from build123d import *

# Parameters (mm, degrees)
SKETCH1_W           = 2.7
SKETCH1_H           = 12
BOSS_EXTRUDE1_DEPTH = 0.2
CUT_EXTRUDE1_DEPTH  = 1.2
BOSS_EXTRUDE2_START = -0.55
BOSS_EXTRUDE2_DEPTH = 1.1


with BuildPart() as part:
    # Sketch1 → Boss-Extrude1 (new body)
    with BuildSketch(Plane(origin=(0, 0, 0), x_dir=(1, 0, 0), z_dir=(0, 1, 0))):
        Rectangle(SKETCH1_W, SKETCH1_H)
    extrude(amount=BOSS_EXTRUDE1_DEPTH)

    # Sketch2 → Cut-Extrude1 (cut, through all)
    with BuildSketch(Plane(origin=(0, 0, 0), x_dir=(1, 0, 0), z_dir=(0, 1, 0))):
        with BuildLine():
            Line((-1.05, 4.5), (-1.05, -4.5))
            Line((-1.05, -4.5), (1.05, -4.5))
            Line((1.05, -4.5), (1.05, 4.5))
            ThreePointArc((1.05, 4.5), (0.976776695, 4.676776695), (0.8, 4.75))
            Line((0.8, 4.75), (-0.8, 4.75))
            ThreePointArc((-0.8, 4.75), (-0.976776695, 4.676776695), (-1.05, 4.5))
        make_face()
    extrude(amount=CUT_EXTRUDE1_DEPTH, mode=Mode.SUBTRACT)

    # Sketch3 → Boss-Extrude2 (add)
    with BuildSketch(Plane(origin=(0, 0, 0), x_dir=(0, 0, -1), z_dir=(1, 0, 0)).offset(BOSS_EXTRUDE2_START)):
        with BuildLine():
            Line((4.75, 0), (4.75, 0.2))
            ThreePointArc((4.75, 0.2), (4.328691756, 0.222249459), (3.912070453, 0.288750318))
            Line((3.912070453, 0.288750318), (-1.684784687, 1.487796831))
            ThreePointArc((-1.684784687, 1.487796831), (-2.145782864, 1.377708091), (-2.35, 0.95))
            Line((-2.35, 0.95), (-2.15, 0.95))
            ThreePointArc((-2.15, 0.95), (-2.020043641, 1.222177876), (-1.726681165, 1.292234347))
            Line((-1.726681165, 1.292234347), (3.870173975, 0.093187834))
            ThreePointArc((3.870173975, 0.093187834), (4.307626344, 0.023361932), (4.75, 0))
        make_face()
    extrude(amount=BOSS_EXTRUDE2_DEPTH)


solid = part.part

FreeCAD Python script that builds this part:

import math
import FreeCAD as App
import Part
import Sketcher

V = App.Vector

doc = App.newDocument("Part")
params = doc.addObject("Spreadsheet::Sheet", "Params")
for row, (alias, value) in enumerate([
    ("sketch1_height", "12 mm"),
    ("sketch1_width", "2.7 mm"),
    ("pad1_length", "0.2 mm"),
    ("sketch2_height", "9 mm"),
    ("sketch2_radius", "0.25 mm"),
    ("sketch2_width", "2.1 mm"),
    ("sketch3_radius", "4 mm"),
    ("sketch3_radius2", "4.2 mm"),
    ("sketch3_radius3", "0.55 mm"),
    ("pad2_length", "1.1 mm"),
], start=1):
    params.set(f"A{row}", alias)
    params.set(f"B{row}", "=" + value)
    params.setAlias(f"B{row}", alias)

body = doc.addObject("PartDesign::Body", "Body")

sketch1 = doc.addObject("Sketcher::SketchObject", "Sketch")
body.addObject(sketch1)
sketch1.AttachmentSupport = (doc.XZ_Plane, [""])
sketch1.MapMode = "FlatFace"
sketch1.addGeometry([
    Part.LineSegment(V(-1.4, -6, 0), V(-1.4, 6, 0)),
    Part.LineSegment(V(-1.4, 6, 0), V(1.4, 6, 0)),
    Part.LineSegment(V(1.4, 6, 0), V(1.4, -6, 0)),
    Part.LineSegment(V(1.4, -6, 0), V(-1.4, -6, 0)),
], False)
sketch1.addConstraint([
    Sketcher.Constraint("Coincident", 0, 2, 1, 1),
    Sketcher.Constraint("Coincident", 1, 2, 2, 1),
    Sketcher.Constraint("Coincident", 2, 2, 3, 1),
    Sketcher.Constraint("Coincident", 3, 2, 0, 1),
    Sketcher.Constraint("Vertical", 0),
    Sketcher.Constraint("Horizontal", 1),
    Sketcher.Constraint("Vertical", 2),
    Sketcher.Constraint("Horizontal", 3),
    Sketcher.Constraint("Symmetric", 0, 2, 2, 2, -1, 1),
    Sketcher.Constraint("DistanceY", 0, 1, 0, 2, 12.0),
    Sketcher.Constraint("DistanceX", 1, 1, 1, 2, 2.7),
])
sketch1.setExpression("Constraints[9]", "Params.sketch1_height")
sketch1.setExpression("Constraints[10]", "Params.sketch1_width")
pad1 = doc.addObject("PartDesign::Pad", "Pad")
body.addObject(pad1)
pad1.Profile = sketch1
pad1.setExpression("Length", "Params.pad1_length")
pad1.Reversed = True

sketch2 = doc.addObject("Sketcher::SketchObject", "Sketch001")
body.addObject(sketch2)
sketch2.AttachmentSupport = (doc.XZ_Plane, [""])
sketch2.MapMode = "FlatFace"
sketch2.addGeometry([
    Part.LineSegment(V(-1.05, -4.5, 0), V(-1.05, 4.5, 0)),
    Part.LineSegment(V(-1.05, 4.5, 0), V(1.05, 4.5, 0)),
    Part.LineSegment(V(1.05, 4.5, 0), V(1.05, -4.5, 0)),
    Part.ArcOfCircle(Part.Circle(V(0.8, -4.5, 0), V(0, 0, 1), 0.25), math.radians(-90), math.radians(0)),
    Part.LineSegment(V(0.8, -4.75, 0), V(-0.8, -4.75, 0)),
    Part.ArcOfCircle(Part.Circle(V(-0.8, -4.5, 0), V(0, 0, 1), 0.25), math.radians(-180), math.radians(-90)),
], False)
sketch2.addConstraint([
    Sketcher.Constraint("Coincident", 0, 2, 1, 1),
    Sketcher.Constraint("Coincident", 1, 2, 2, 1),
    Sketcher.Constraint("Tangent", 2, 2, 3, 2),
    Sketcher.Constraint("Tangent", 3, 1, 4, 1),
    Sketcher.Constraint("Tangent", 4, 2, 5, 2),
    Sketcher.Constraint("Tangent", 5, 1, 0, 1),
    Sketcher.Constraint("Vertical", 0),
    Sketcher.Constraint("Horizontal", 1),
    Sketcher.Constraint("Vertical", 2),
    Sketcher.Constraint("Horizontal", 4),
    Sketcher.Constraint("Equal", 3, 5),
    Sketcher.Constraint("Symmetric", 0, 2, 2, 2, -1, 1),
    Sketcher.Constraint("DistanceY", 0, 1, 0, 2, 9.0),
    Sketcher.Constraint("Radius", 3, 0.25),
    Sketcher.Constraint("DistanceX", 1, 1, 1, 2, 2.1),
])
sketch2.setExpression("Constraints[12]", "Params.sketch2_height")
sketch2.setExpression("Constraints[13]", "Params.sketch2_radius")
sketch2.setExpression("Constraints[14]", "Params.sketch2_width")
pocket1 = doc.addObject("PartDesign::Pocket", "Pocket")
body.addObject(pocket1)
pocket1.Profile = sketch2
pocket1.Type = "ThroughAll"

sketch3 = doc.addObject("Sketcher::SketchObject", "Sketch002")
body.addObject(sketch3)
sketch3.AttachmentSupport = (doc.YZ_Plane, [""])
sketch3.MapMode = "FlatFace"
sketch3.AttachmentOffset = App.Placement(V(0, 0, -0.55), App.Rotation())
sketch3.addGeometry([
    Part.LineSegment(V(0, -4.75, 0), V(0.2, -4.75, 0)),
    Part.ArcOfCircle(Part.Circle(V(4.2, -4.75, 0), V(0, 0, 1), 4), math.radians(167.91), math.radians(180)),
    Part.LineSegment(V(0.29, -3.91, 0), V(1.49, 1.68, 0)),
    Part.ArcOfCircle(Part.Circle(V(0.95, 1.8, 0), V(0, 0, 1), 0.55), math.radians(-12), math.radians(90)),
    Part.LineSegment(V(0.95, 2.35, 0), V(0.95, 2.15, 0)),
    Part.ArcOfCircle(Part.Circle(V(0.95, 1.8, 0), V(0, 0, 1), 0.35), math.radians(-12), math.radians(90)),
    Part.LineSegment(V(1.29, 1.73, 0), V(0.09, -3.87, 0)),
    Part.ArcOfCircle(Part.Circle(V(4.2, -4.75, 0), V(0, 0, 1), 4.2), math.radians(167.91), math.radians(180)),
], False)
sketch3.addConstraint([
    Sketcher.Constraint("Coincident", 0, 2, 1, 2),
    Sketcher.Constraint("Tangent", 1, 1, 2, 1),
    Sketcher.Constraint("Tangent", 2, 2, 3, 1),
    Sketcher.Constraint("Coincident", 3, 2, 4, 1),
    Sketcher.Constraint("Coincident", 4, 2, 5, 2),
    Sketcher.Constraint("Tangent", 5, 1, 6, 1),
    Sketcher.Constraint("Tangent", 6, 2, 7, 1),
    Sketcher.Constraint("Coincident", 7, 2, 0, 1),
    Sketcher.Constraint("Horizontal", 0),
    Sketcher.Constraint("Vertical", 4),
    Sketcher.Constraint("Coincident", 5, 3, 3, 3),
    Sketcher.Constraint("Coincident", 7, 3, 1, 3),
    Sketcher.Constraint("PointOnObject", 7, 2, -2),
    Sketcher.Constraint("Parallel", 2, 6),
    Sketcher.Constraint("Horizontal", 7, 3, 0, 2),
    Sketcher.Constraint("Vertical", 5, 3, 3, 2),
    Sketcher.Constraint("Radius", 1, 4.0),
    Sketcher.Constraint("Radius", 7, 4.2),
    Sketcher.Constraint("Radius", 3, 0.55),
    Sketcher.Constraint("DistanceY", -1, 1, 3, 3, 1.8),
    Sketcher.Constraint("DistanceY", 0, 2, 3, 2, 7.1),
    Sketcher.Constraint("DistanceX", -1, 1, 3, 3, 0.95),
])
sketch3.setExpression("Constraints[16]", "Params.sketch3_radius")
sketch3.setExpression("Constraints[17]", "Params.sketch3_radius2")
sketch3.setExpression("Constraints[18]", "Params.sketch3_radius3")
pad2 = doc.addObject("PartDesign::Pad", "Pad001")
body.addObject(pad2)
pad2.Profile = sketch3
pad2.setExpression("Length", "Params.pad2_length")

doc.recompute()
